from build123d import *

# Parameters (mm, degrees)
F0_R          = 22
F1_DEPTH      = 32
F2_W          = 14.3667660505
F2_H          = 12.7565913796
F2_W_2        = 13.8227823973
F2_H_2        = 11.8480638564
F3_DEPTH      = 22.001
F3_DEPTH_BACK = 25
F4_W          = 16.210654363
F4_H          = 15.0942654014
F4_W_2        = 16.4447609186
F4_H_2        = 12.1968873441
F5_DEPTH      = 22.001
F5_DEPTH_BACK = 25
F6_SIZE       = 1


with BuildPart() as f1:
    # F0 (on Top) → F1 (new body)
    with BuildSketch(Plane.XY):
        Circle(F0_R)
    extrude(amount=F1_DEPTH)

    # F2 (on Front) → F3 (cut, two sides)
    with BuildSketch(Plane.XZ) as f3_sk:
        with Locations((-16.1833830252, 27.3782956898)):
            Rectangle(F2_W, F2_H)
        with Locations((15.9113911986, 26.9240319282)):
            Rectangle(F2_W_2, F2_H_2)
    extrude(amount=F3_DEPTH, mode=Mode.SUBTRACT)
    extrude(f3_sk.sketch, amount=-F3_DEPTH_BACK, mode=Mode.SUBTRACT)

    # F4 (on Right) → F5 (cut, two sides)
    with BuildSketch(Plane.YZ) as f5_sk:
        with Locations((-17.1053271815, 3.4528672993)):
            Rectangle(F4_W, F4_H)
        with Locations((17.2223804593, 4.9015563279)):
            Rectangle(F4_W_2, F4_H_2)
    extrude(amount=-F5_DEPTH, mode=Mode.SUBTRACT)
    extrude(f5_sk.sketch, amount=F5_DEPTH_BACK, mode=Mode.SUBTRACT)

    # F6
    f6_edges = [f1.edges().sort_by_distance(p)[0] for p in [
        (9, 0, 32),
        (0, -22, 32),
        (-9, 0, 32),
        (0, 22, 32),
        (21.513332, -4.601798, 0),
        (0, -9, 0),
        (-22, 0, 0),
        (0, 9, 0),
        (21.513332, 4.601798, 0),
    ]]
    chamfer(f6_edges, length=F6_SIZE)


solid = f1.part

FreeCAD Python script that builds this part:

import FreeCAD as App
import Part
import Sketcher


def edges_at(feature, points):
    """Names of the edges that pass closest to the given points."""
    edges = feature.Shape.Edges
    near = lambda p: min(range(len(edges)), key=lambda i: edges[i].distToShape(Part.Vertex(*p))[0])
    return sorted({f"Edge{near(p) + 1}" for p in points})


def add_polygon(sketch, points):
    """Adds a closed chain of lines whose ends are joined by coincident constraints."""
    first, n = sketch.GeometryCount, len(points)
    for a, b in zip(points, points[1:] + points[:1]):
        sketch.addGeometry(Part.LineSegment(App.Vector(*a, 0), App.Vector(*b, 0)), False)
    for i in range(n):
        sketch.addConstraint(Sketcher.Constraint("Coincident", first + i, 2, first + (i + 1) % n, 1))

doc = App.newDocument("Part")
params = doc.addObject("Spreadsheet::Sheet", "Params")
for row, (alias, value) in enumerate([
    ("sketch1_diameter", "44 mm"),
    ("pad1_length", "32 mm"),
    ("chamfer_size", "1 mm"),
], start=1):
    params.set(f"A{row}", alias)
    params.set(f"B{row}", "=" + value)
    params.setAlias(f"B{row}", alias)

body = doc.addObject("PartDesign::Body", "Body")

# Sketch on XY plane
sketch1 = body.newObject("Sketcher::SketchObject", "Sketch")
sketch1.AttachmentSupport = (doc.getObject("XY_Plane"), [""])
sketch1.MapMode = "FlatFace"
sketch1.addGeometry(Part.Circle(App.Vector(0, 0, 0), App.Vector(0, 0, 1), 22), False)
sketch1.addConstraint([
    Sketcher.Constraint("Coincident", 0, 3, -1, 1),
    Sketcher.Constraint("Diameter", 0, 44.0),
])
sketch1.setExpression("Constraints[1]", "Params.sketch1_diameter")
pad1 = body.newObject("PartDesign::Pad", "Pad")
pad1.Profile = sketch1
pad1.setExpression("Length", "Params.pad1_length")

# Sketch on XZ plane
sketch2 = body.newObject("Sketcher::SketchObject", "Sketch001")
sketch2.AttachmentSupport = (doc.getObject("XZ_Plane"), [""])
sketch2.MapMode = "FlatFace"
add_polygon(sketch2, [(-23, 34), (-23, 21), (-9, 21), (-9, 34)])  # lines 0-3
add_polygon(sketch2, [(9, 33), (9, 21), (23, 21), (23, 33)])  # lines 4-7
sketch2.addConstraint([
    Sketcher.Constraint("Vertical", 0),
    Sketcher.Constraint("Horizontal", 1),
    Sketcher.Constraint("Vertical", 2),
    Sketcher.Constraint("Horizontal", 3),
    Sketcher.Constraint("Vertical", 4),
    Sketcher.Constraint("Horizontal", 5),
    Sketcher.Constraint("Vertical", 6),
    Sketcher.Constraint("Horizontal", 7),
    Sketcher.Constraint("Symmetric", 1, 2, 4, 2, -2),
    Sketcher.Constraint("DistanceY", -1, 1, 0, 2, 21.0),
    Sketcher.Constraint("DistanceX", 1, 2, -1, 1, 9.0),
    Sketcher.Constraint("DistanceY", 0, 2, 0, 1, 12.756591),
    Sketcher.Constraint("DistanceX", 1, 1, 1, 2, 14.366766),
    Sketcher.Constraint("DistanceX", 5, 1, 5, 2, 13.822782),
    Sketcher.Constraint("DistanceY", 4, 2, 4, 1, 11.848064),
])
pocket1 = body.newObject("PartDesign::Pocket", "Pocket")
pocket1.Profile = sketch2
pocket1.Type = "ThroughAll"
pocket1.Midplane = True

# Sketch on YZ plane
sketch3 = body.newObject("Sketcher::SketchObject", "Sketch002")
sketch3.AttachmentSupport = (doc.getObject("YZ_Plane"), [""])
sketch3.MapMode = "FlatFace"
add_polygon(sketch3, [(-25, 11), (-25, -4), (-9, -4), (-9, 11)])  # lines 0-3
add_polygon(sketch3, [(9, 11), (9, -1), (25, -1), (25, 11)])  # lines 4-7
sketch3.addConstraint([
    Sketcher.Constraint("Vertical", 0),
    Sketcher.Constraint("Horizontal", 1),
    Sketcher.Constraint("Vertical", 2),
    Sketcher.Constraint("Horizontal", 3),
    Sketcher.Constraint("Vertical", 4),
    Sketcher.Constraint("Horizontal", 5),
    Sketcher.Constraint("Vertical", 6),
    Sketcher.Constraint("Horizontal", 7),
    Sketcher.Constraint("Symmetric", 2, 2, 7, 2, -2),
    Sketcher.Constraint("DistanceX", 1, 2, -1, 1, 9.0),
    Sketcher.Constraint("DistanceY", -1, 1, 2, 2, 11.0),
    Sketcher.Constraint("DistanceX", 5, 1, 5, 2, 16.444761),
    Sketcher.Constraint("DistanceX", 1, 1, 1, 2, 16.210654),
    Sketcher.Constraint("DistanceY", 0, 2, 0, 1, 15.094265),
    Sketcher.Constraint("DistanceY", 4, 2, 4, 1, 12.196887),
])
pocket2 = body.newObject("PartDesign::Pocket", "Pocket001")
pocket2.Profile = sketch3
pocket2.Type = "ThroughAll"
pocket2.Midplane = True
doc.recompute()

chamfer = body.newObject("PartDesign::Chamfer", "Chamfer")
chamfer.Base = (pocket2, edges_at(pocket2, [
    (9, 0, 32),
    (0, -22, 32),
    (-9, 0, 32),
    (0, 22, 32),
    (21.513, -4.602, 0),
    (0, -9, 0),
    (-22, 0, 0),
    (0, 9, 0),
    (21.513, 4.602, 0),
]))
chamfer.setExpression("Size", "Params.chamfer_size")

doc.recompute()
